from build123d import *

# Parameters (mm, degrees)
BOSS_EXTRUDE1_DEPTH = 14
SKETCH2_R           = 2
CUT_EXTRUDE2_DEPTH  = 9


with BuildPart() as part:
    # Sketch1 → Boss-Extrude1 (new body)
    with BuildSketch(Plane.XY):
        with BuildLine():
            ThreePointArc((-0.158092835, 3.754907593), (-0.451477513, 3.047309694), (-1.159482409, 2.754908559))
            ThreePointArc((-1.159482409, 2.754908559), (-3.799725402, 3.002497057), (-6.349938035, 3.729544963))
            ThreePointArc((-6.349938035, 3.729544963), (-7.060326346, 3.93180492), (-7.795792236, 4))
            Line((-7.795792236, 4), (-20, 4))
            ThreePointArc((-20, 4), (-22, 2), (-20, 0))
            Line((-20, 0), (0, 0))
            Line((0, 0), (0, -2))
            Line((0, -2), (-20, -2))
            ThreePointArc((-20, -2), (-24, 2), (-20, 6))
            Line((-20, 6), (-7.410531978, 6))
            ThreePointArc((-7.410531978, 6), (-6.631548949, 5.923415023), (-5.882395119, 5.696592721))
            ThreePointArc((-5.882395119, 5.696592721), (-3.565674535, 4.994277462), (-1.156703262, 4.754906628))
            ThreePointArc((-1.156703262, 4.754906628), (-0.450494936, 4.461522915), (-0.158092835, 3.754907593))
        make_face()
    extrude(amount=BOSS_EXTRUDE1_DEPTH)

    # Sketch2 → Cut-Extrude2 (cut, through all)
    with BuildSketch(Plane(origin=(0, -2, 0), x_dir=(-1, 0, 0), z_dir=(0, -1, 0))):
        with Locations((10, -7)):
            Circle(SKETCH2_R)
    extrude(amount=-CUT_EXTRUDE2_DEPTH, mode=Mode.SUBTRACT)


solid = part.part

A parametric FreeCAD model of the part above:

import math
import FreeCAD as App
import Part
import Sketcher
from FreeCAD import Vector

doc = App.newDocument("Part")
body = doc.addObject("PartDesign::Body", "Body")

sketch1 = body.newObject("Sketcher::SketchObject", "Sketch")
sketch1.AttachmentSupport = (doc.getObject("XY_Plane"), [""])
sketch1.MapMode = "FlatFace"
sketch1.addGeometry([
    Part.ArcOfCircle(Part.Circle(Vector(-1.158093, 3.754908, 0), Vector(0, 0, 1), 1), math.radians(-90.079617), math.radians(0)),
    Part.ArcOfCircle(Part.Circle(Vector(-1.158093, 3.754908, 0), Vector(0, 0, 1), 1), math.radians(0), math.radians(89.920383)),
    Part.ArcOfCircle(Part.Circle(Vector(-1.139452, 17.169865, 0), Vector(0, 0, 1), 12.41497), math.radians(-112.459744), math.radians(-90.079617)),
    Part.ArcOfCircle(Part.Circle(Vector(-7.410532, 2, 0), Vector(0, 0, 1), 4), math.radians(67.540256), math.radians(90)),
    Part.LineSegment(Vector(-7.410532, 6, 0), Vector(-20, 6, 0)),
    Part.ArcOfCircle(Part.Circle(Vector(-20, 2, 0), Vector(0, 0, 1), 4), math.radians(90), math.radians(270)),
    Part.LineSegment(Vector(-20, -2, 0), Vector(0, -2, 0)),
    Part.LineSegment(Vector(0, -2, 0), Vector(0, 0, 0)),
    Part.LineSegment(Vector(0, 0, 0), Vector(-20, 0, 0)),
    Part.ArcOfCircle(Part.Circle(Vector(-20, 2, 0), Vector(0, 0, 1), 2), math.radians(90), math.radians(270)),
    Part.LineSegment(Vector(-20, 4, 0), Vector(-7.795792, 4, 0)),
    Part.ArcOfCircle(Part.Circle(Vector(-7.795792, 0, 0), Vector(0, 0, 1), 4), math.radians(68.809895), math.radians(90)),
    Part.ArcOfCircle(Part.Circle(Vector(-1.139452, 17.169865, 0), Vector(0, 0, 1), 14.41497), math.radians(-111.190105), math.radians(-90.079617)),
], False)
sketch1.addConstraint([
    Sketcher.Constraint("Tangent", 0, 2, 1, 1),
    Sketcher.Constraint("Tangent", 1, 2, 2, 2),
    Sketcher.Constraint("Tangent", 2, 1, 3, 1),
    Sketcher.Constraint("Tangent", 3, 2, 4, 1),
    Sketcher.Constraint("Tangent", 4, 2, 5, 1),
    Sketcher.Constraint("Tangent", 5, 2, 6, 1),
    Sketcher.Constraint("Coincident", 6, 2, 7, 1),
    Sketcher.Constraint("Coincident", 7, 2, 8, 1),
    Sketcher.Constraint("Tangent", 8, 2, 9, 2),
    Sketcher.Constraint("Tangent", 9, 1, 10, 1),
    Sketcher.Constraint("Tangent", 10, 2, 11, 2),
    Sketcher.Constraint("Tangent", 11, 1, 12, 1),
    Sketcher.Constraint("Tangent", 12, 2, 0, 1),
    Sketcher.Constraint("Horizontal", 4),
    Sketcher.Constraint("Horizontal", 6),
    Sketcher.Constraint("Vertical", 7),
    Sketcher.Constraint("Horizontal", 8),
    Sketcher.Constraint("Horizontal", 10),
    Sketcher.Constraint("Coincident", 7, 2, -1, 1),
    Sketcher.Constraint("Coincident", 9, 3, 5, 3),
    Sketcher.Constraint("Coincident", 12, 3, 2, 3),
    Sketcher.Constraint("Equal", 0, 1),
    Sketcher.Constraint("Equal", 3, 5),
    Sketcher.Constraint("Equal", 5, 11),
    Sketcher.Constraint("PointOnObject", 11, 3, -1),
    Sketcher.Constraint("Horizontal", 1, 3, 0, 2),
    Sketcher.Constraint("Radius", 0, 1.0),
    Sketcher.Constraint("Radius", 3, 4.0),
    Sketcher.Constraint("DistanceX", 6, 1, 6, 2, 20.0),
    Sketcher.Constraint("Radius", 2, 12.41497),
    Sketcher.Constraint("DistanceX", 4, 2, 4, 1, 12.589468),
    Sketcher.Constraint("DistanceX", 11, 3, 1, 3, 6.637699),
    Sketcher.Constraint("DistanceX", 10, 1, 10, 2, 12.204208),
])
pad1 = body.newObject("PartDesign::Pad", "Pad")
pad1.Profile = sketch1
pad1.Length = 14

sketch2 = body.newObject("Sketcher::SketchObject", "Sketch001")
sketch2.AttachmentSupport = (doc.getObject("XZ_Plane"), [""])
sketch2.MapMode = "FlatFace"
sketch2.AttachmentOffset = App.Placement(Vector(0, 0, 2), App.Rotation())
sketch2.addGeometry(Part.Circle(Vector(-10, 7, 0), Vector(0, 0, 1), 2), False)
sketch2.addConstraint([
    Sketcher.Constraint("Diameter", 0, 4.0),
    Sketcher.Constraint("DistanceX", 0, 3, -1, 1, 10.0),
    Sketcher.Constraint("DistanceY", -1, 1, 0, 3, 7.0),
])
pocket1 = body.newObject("PartDesign::Pocket", "Pocket")
pocket1.Profile = sketch2
pocket1.Type = "ThroughAll"

doc.recompute()
